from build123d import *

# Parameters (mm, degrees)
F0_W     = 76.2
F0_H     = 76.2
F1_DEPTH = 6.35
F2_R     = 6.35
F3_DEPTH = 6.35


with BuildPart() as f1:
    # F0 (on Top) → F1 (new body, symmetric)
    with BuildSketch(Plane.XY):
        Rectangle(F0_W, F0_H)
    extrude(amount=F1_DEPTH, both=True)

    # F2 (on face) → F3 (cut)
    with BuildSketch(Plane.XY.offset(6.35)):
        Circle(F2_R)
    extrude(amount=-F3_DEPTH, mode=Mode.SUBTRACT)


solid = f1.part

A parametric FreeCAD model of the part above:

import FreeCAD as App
import Part
import Sketcher
from FreeCAD import Vector
Q = App.Units.Quantity

doc = App.newDocument("Part")
body = doc.addObject("PartDesign::Body", "Body")

sketch1 = body.newObject("Sketcher::SketchObject", "Sketch")
sketch1.AttachmentSupport = (doc.getObject("XY_Plane"), [""])
sketch1.MapMode = "FlatFace"
sketch1.addGeometry(Part.LineSegment(Vector(-38, 38, 0), Vector(-38, -38, 0)), False)
sketch1.addGeometry(Part.LineSegment(Vector(-38, -38, 0), Vector(38, -38, 0)), False)
sketch1.addGeometry(Part.LineSegment(Vector(38, -38, 0), Vector(38, 38, 0)), False)
sketch1.addGeometry(Part.LineSegment(Vector(38, 38, 0), Vector(-38, 38, 0)), False)
sketch1.addConstraint(Sketcher.Constraint("Coincident", 0, 2, 1, 1))
sketch1.addConstraint(Sketcher.Constraint("Coincident", 1, 2, 2, 1))
sketch1.addConstraint(Sketcher.Constraint("Coincident", 2, 2, 3, 1))
sketch1.addConstraint(Sketcher.Constraint("Coincident", 3, 2, 0, 1))
sketch1.addConstraint(Sketcher.Constraint("Vertical", 0))
sketch1.addConstraint(Sketcher.Constraint("Horizontal", 1))
sketch1.addConstraint(Sketcher.Constraint("Vertical", 2))
sketch1.addConstraint(Sketcher.Constraint("Horizontal", 3))
sketch1.addConstraint(Sketcher.Constraint("Symmetric", 0, 2, 2, 2, -1, 1))
sketch1.addConstraint(Sketcher.Constraint("Equal", 3, 0))
sketch1.addConstraint(Sketcher.Constraint("DistanceX", 1, 1, 1, 2, Q("3 in")))
pad1 = body.newObject("PartDesign::Pad", "Pad")
pad1.Profile = sketch1
pad1.Length = Q("0.5 in")
pad1.Midplane = True

sketch2 = body.newObject("Sketcher::SketchObject", "Sketch001")
sketch2.AttachmentSupport = (doc.getObject("XY_Plane"), [""])
sketch2.MapMode = "FlatFace"
sketch2.AttachmentOffset = App.Placement(Vector(0, 0, 0.25 * 25.4), App.Rotation())
sketch2.addGeometry(Part.Circle(Vector(0, 0, 0), Vector(0, 0, 1), 6), False)
sketch2.addConstraint(Sketcher.Constraint("Coincident", 0, 3, -1, 1))
sketch2.addConstraint(Sketcher.Constraint("Diameter", 0, Q("0.5 in")))
pocket1 = body.newObject("PartDesign::Pocket", "Pocket")
pocket1.Profile = sketch2
pocket1.Length = Q("0.25 in")

doc.recompute()
